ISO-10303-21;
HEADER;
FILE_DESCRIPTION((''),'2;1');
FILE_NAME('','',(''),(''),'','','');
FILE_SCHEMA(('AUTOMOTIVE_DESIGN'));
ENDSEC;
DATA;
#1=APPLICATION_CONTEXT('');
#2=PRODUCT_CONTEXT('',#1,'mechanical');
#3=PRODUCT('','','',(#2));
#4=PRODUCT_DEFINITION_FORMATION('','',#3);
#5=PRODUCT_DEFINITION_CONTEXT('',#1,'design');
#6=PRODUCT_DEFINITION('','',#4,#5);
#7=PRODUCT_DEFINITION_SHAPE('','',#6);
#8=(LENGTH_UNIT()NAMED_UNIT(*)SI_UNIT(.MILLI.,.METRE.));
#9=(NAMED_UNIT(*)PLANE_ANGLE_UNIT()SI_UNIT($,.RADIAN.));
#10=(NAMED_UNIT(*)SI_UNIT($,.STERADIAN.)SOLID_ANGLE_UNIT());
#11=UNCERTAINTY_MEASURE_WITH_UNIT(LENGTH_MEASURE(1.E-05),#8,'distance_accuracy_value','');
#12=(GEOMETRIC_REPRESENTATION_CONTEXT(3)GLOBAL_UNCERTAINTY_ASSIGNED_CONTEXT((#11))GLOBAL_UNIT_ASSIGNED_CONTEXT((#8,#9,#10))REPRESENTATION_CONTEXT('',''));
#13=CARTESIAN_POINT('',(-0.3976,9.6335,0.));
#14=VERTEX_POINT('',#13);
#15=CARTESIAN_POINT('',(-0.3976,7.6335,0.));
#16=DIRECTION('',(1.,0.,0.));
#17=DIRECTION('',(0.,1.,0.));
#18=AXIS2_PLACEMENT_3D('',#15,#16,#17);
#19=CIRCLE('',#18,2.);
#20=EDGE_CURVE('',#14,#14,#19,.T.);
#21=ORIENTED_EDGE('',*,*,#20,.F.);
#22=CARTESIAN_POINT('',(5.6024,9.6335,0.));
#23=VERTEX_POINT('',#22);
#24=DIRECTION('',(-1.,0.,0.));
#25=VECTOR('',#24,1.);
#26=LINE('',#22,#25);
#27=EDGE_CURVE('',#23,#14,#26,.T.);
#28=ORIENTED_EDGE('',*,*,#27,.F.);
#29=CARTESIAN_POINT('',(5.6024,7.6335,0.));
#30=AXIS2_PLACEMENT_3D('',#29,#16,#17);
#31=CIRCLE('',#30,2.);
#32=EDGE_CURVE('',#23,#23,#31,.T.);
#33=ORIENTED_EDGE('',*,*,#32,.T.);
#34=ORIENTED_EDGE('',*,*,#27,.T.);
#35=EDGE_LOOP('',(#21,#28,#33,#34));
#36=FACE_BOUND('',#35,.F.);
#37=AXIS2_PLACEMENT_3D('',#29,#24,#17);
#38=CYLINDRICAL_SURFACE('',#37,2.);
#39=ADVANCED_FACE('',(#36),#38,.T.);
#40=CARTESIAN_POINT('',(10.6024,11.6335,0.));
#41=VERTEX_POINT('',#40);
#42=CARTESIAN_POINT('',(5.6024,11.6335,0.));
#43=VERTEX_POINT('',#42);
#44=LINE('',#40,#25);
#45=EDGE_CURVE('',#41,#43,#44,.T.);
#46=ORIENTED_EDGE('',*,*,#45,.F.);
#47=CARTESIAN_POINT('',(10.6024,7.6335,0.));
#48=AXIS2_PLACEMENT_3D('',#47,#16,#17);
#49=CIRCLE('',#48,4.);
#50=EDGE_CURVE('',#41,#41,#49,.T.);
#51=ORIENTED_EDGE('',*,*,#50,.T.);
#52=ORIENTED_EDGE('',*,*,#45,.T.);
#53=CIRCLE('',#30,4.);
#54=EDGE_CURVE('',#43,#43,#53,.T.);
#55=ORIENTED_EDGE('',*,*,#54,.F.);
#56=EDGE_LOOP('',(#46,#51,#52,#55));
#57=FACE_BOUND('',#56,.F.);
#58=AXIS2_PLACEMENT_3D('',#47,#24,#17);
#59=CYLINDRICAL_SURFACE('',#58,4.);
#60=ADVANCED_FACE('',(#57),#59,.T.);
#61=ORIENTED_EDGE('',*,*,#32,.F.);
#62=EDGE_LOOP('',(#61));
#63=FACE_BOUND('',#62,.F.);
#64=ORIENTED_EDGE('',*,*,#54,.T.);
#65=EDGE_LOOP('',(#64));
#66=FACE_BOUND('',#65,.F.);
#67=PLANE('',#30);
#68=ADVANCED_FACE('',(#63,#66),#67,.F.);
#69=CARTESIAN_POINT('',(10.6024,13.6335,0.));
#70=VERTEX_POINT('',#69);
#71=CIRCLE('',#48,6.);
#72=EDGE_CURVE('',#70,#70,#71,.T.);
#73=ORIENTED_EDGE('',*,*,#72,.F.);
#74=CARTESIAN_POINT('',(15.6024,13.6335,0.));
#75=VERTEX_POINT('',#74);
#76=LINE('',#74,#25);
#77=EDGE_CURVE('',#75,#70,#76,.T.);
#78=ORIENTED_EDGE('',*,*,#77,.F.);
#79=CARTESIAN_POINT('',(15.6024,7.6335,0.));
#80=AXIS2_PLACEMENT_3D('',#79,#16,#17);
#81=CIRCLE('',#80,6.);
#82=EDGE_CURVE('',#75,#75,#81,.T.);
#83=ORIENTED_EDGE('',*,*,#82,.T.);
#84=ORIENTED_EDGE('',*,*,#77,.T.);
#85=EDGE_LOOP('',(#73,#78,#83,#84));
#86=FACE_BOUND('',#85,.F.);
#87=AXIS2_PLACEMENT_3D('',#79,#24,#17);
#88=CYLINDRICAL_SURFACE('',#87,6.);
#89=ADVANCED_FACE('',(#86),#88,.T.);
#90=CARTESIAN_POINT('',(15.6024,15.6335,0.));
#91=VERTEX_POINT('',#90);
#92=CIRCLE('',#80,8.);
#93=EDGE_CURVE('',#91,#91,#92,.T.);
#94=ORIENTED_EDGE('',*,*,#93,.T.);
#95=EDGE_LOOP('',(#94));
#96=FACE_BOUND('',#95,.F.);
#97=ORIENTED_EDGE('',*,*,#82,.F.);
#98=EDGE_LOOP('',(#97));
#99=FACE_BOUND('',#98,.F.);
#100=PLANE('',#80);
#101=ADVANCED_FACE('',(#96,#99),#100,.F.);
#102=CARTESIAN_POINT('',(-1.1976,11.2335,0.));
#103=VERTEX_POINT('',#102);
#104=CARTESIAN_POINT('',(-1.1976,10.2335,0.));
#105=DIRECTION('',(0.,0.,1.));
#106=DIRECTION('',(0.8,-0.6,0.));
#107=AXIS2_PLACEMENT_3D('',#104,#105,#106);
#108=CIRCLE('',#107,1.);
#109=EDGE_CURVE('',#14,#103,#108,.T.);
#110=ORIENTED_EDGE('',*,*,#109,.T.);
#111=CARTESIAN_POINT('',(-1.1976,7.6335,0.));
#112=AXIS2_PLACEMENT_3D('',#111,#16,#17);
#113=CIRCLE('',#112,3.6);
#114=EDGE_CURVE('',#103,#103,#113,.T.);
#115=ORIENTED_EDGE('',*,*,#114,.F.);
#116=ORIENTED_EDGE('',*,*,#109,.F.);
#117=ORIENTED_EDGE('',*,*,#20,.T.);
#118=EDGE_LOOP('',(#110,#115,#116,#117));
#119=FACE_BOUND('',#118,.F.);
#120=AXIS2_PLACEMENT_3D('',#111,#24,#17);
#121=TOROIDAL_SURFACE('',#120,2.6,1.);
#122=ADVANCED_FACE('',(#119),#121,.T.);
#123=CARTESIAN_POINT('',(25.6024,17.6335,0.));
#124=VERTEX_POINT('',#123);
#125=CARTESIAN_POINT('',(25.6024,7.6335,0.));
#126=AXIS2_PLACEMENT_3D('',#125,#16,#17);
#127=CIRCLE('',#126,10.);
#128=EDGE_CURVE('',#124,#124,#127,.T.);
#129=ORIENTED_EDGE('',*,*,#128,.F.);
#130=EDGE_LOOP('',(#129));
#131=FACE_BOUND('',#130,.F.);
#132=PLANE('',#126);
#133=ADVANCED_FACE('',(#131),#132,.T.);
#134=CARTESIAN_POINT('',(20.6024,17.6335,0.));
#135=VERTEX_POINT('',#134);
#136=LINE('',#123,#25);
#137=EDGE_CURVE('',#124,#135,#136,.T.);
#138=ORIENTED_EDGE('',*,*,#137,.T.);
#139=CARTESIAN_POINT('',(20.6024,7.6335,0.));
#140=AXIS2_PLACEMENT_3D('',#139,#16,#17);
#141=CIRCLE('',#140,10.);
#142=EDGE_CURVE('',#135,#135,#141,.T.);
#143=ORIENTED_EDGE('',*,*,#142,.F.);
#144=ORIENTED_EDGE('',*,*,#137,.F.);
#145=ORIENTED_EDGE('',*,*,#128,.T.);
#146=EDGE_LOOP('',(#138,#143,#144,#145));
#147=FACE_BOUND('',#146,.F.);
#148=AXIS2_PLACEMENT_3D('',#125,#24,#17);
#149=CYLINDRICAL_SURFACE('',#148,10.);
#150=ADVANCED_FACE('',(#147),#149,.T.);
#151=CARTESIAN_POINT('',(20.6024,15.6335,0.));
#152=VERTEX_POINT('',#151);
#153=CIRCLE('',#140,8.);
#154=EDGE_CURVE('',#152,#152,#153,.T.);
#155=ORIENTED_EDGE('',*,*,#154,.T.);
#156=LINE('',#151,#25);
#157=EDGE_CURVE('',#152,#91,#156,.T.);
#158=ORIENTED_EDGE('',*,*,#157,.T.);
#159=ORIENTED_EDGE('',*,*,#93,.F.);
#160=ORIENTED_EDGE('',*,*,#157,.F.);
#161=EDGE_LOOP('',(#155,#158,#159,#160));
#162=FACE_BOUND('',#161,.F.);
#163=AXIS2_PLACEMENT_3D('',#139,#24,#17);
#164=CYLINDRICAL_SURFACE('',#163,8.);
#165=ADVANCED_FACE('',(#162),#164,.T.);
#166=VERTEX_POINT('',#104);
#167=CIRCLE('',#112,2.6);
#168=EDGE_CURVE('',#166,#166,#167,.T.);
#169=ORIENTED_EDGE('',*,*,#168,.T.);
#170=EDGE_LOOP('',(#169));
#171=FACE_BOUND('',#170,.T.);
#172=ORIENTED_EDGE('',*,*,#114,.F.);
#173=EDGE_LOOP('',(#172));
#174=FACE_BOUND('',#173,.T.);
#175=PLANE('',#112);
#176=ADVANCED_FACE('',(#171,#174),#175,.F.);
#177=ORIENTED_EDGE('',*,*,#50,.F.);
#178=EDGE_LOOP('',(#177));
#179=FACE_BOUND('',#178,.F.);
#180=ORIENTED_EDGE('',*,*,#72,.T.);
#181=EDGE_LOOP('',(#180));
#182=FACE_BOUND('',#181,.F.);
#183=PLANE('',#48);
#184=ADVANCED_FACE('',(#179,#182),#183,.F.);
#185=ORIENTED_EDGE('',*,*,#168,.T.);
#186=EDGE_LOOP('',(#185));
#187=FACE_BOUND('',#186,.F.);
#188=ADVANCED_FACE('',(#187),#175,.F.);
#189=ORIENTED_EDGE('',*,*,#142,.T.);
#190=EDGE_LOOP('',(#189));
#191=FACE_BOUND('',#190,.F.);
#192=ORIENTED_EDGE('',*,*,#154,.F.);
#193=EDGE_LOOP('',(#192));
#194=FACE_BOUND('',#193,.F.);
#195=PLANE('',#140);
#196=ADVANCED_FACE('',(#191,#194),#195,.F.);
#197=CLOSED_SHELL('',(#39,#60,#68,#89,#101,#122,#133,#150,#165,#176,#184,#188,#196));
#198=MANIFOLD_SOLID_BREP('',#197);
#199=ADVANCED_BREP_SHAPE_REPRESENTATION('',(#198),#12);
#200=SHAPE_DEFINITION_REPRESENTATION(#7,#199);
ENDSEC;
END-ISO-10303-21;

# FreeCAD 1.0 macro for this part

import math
import FreeCAD as App
import Part
import Sketcher
Q = App.Units.Quantity

doc = App.newDocument("Part")
body = doc.addObject("PartDesign::Body", "Body")

# Sketch on XY plane
sketch1 = body.newObject("Sketcher::SketchObject", "Sketch")
sketch1.AttachmentSupport = (doc.getObject("XY_Plane"), [""])
sketch1.MapMode = "FlatFace"
sketch1.addGeometry(Part.LineSegment(App.Vector(-1.2, 7.6, 0), App.Vector(25.6, 7.6, 0)), False)
sketch1.addGeometry(Part.LineSegment(App.Vector(25.6, 7.6, 0), App.Vector(25.6, 17.6, 0)), False)
sketch1.addGeometry(Part.LineSegment(App.Vector(25.6, 17.6, 0), App.Vector(20.6, 17.6, 0)), False)
sketch1.addGeometry(Part.LineSegment(App.Vector(20.6, 17.6, 0), App.Vector(20.6, 15.6, 0)), False)
sketch1.addGeometry(Part.LineSegment(App.Vector(20.6, 15.6, 0), App.Vector(15.6, 15.6, 0)), False)
sketch1.addGeometry(Part.LineSegment(App.Vector(15.6, 15.6, 0), App.Vector(15.6, 13.6, 0)), False)
sketch1.addGeometry(Part.LineSegment(App.Vector(15.6, 13.6, 0), App.Vector(10.6, 13.6, 0)), False)
sketch1.addGeometry(Part.LineSegment(App.Vector(10.6, 13.6, 0), App.Vector(10.6, 11.6, 0)), False)
sketch1.addGeometry(Part.LineSegment(App.Vector(10.6, 11.6, 0), App.Vector(5.6, 11.6, 0)), False)
sketch1.addGeometry(Part.LineSegment(App.Vector(5.6, 11.6, 0), App.Vector(5.6, 9.6, 0)), False)
sketch1.addGeometry(Part.LineSegment(App.Vector(5.6, 9.6, 0), App.Vector(-0.4, 9.6, 0)), False)
sketch1.addGeometry(Part.ArcOfCircle(Part.Circle(App.Vector(-1.2, 10.2, 0), App.Vector(0, 0, 1), 1), math.radians(-37), math.radians(90)), False)
sketch1.addGeometry(Part.LineSegment(App.Vector(-1.2, 11.2, 0), App.Vector(-1.2, 7.6, 0)), False)
sketch1.addGeometry(Part.LineSegment(App.Vector(-1.2, 7.6, 0), App.Vector(25.6, 7.6, 0)), True)  # axis
sketch1.addConstraint(Sketcher.Constraint("Coincident", 0, 2, 1, 1))
sketch1.addConstraint(Sketcher.Constraint("Coincident", 1, 2, 2, 1))
sketch1.addConstraint(Sketcher.Constraint("Coincident", 2, 2, 3, 1))
sketch1.addConstraint(Sketcher.Constraint("Coincident", 3, 2, 4, 1))
sketch1.addConstraint(Sketcher.Constraint("Coincident", 4, 2, 5, 1))
sketch1.addConstraint(Sketcher.Constraint("Coincident", 5, 2, 6, 1))
sketch1.addConstraint(Sketcher.Constraint("Coincident", 6, 2, 7, 1))
sketch1.addConstraint(Sketcher.Constraint("Coincident", 7, 2, 8, 1))
sketch1.addConstraint(Sketcher.Constraint("Coincident", 8, 2, 9, 1))
sketch1.addConstraint(Sketcher.Constraint("Coincident", 9, 2, 10, 1))
sketch1.addConstraint(Sketcher.Constraint("Coincident", 10, 2, 11, 1))
sketch1.addConstraint(Sketcher.Constraint("Coincident", 11, 2, 12, 1))
sketch1.addConstraint(Sketcher.Constraint("Coincident", 12, 2, 0, 1))
sketch1.addConstraint(Sketcher.Constraint("Horizontal", 0))
sketch1.addConstraint(Sketcher.Constraint("Vertical", 1))
sketch1.addConstraint(Sketcher.Constraint("Horizontal", 2))
sketch1.addConstraint(Sketcher.Constraint("Vertical", 3))
sketch1.addConstraint(Sketcher.Constraint("Horizontal", 4))
sketch1.addConstraint(Sketcher.Constraint("Vertical", 5))
sketch1.addConstraint(Sketcher.Constraint("Horizontal", 6))
sketch1.addConstraint(Sketcher.Constraint("Vertical", 7))
sketch1.addConstraint(Sketcher.Constraint("Horizontal", 8))
sketch1.addConstraint(Sketcher.Constraint("Vertical", 9))
sketch1.addConstraint(Sketcher.Constraint("Horizontal", 10))
sketch1.addConstraint(Sketcher.Constraint("Vertical", 12))
sketch1.addConstraint(Sketcher.Constraint("Horizontal", 13))
sketch1.addConstraint(Sketcher.Constraint("Coincident", 13, 1, 12, 2))
sketch1.addConstraint(Sketcher.Constraint("Vertical", 1, 2, 13, 2))
sketch1.addConstraint(Sketcher.Constraint("Equal", 2, 4))
sketch1.addConstraint(Sketcher.Constraint("Equal", 4, 6))
sketch1.addConstraint(Sketcher.Constraint("Equal", 6, 8))
sketch1.addConstraint(Sketcher.Constraint("Equal", 3, 5))
sketch1.addConstraint(Sketcher.Constraint("Equal", 5, 7))
sketch1.addConstraint(Sketcher.Constraint("Equal", 7, 9))
sketch1.addConstraint(Sketcher.Constraint("Radius", 11, Q("1 mm")))
sketch1.addConstraint(Sketcher.Constraint("DistanceX", 2, 2, 2, 1, Q("5 mm")))
sketch1.addConstraint(Sketcher.Constraint("DistanceY", 3, 2, 3, 1, Q("2 mm")))
sketch1.addConstraint(Sketcher.Constraint("DistanceY", 12, 2, 10, 2, Q("2 mm")))
sketch1.addConstraint(Sketcher.Constraint("DistanceX", 10, 2, 10, 1, Q("6 mm")))
sketch1.addConstraint(Sketcher.Constraint("DistanceX", 0, 1, 0, 2, Q("26.8 mm")))
sketch1.addConstraint(Sketcher.Constraint("DistanceY", 12, 2, 12, 1, Q("3.6 mm")))
sketch1.addConstraint(Sketcher.Constraint("DistanceX", 11, 3, -1, 1, Q("1.1976 mm")))
sketch1.addConstraint(Sketcher.Constraint("DistanceY", -1, 1, 11, 3, Q("10.2335 mm")))
revolution = body.newObject("PartDesign::Revolution", "Revolution")
revolution.Profile = sketch1
revolution.ReferenceAxis = (sketch1, ["Axis0"])
revolution.Angle = 360

doc.recompute()
